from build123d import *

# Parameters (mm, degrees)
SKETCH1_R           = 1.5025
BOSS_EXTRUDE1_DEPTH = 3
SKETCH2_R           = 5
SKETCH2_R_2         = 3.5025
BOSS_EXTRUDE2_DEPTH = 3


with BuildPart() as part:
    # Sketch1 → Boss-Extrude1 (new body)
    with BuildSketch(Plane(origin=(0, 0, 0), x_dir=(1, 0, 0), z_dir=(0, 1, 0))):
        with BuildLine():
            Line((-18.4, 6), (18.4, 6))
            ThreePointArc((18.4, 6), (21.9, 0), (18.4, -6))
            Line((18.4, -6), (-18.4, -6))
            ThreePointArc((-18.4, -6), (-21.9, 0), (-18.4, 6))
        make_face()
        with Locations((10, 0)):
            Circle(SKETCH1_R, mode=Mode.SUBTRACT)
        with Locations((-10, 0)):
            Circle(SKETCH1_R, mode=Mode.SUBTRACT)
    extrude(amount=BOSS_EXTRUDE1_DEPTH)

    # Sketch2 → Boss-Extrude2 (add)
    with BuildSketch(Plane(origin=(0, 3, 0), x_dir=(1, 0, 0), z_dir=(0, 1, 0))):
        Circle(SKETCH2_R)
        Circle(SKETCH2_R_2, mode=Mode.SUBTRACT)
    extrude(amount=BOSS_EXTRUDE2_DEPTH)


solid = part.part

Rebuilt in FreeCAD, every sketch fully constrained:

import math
import FreeCAD as App
import Part
import Sketcher

doc = App.newDocument("Part")
body = doc.addObject("PartDesign::Body", "Body")

sketch1 = doc.addObject("Sketcher::SketchObject", "Sketch")
body.addObject(sketch1)
sketch1.AttachmentSupport = (doc.XZ_Plane, [""])
sketch1.MapMode = "FlatFace"
sketch1.addGeometry([
    Part.LineSegment(App.Vector(18.4, -6, 0), App.Vector(-18.4, -6, 0)),
    Part.ArcOfCircle(Part.Circle(App.Vector(-15.007143, 0, 0), App.Vector(0, 0, 1), 6.892857), math.radians(119.487126), math.radians(240.512874)),
    Part.LineSegment(App.Vector(-18.4, 6, 0), App.Vector(18.4, 6, 0)),
    Part.ArcOfCircle(Part.Circle(App.Vector(15.007143, 0, 0), App.Vector(0, 0, 1), 6.892857), math.radians(-60.512874), math.radians(60.512874)),
    Part.Circle(App.Vector(10, 0, 0), App.Vector(0, 0, 1), 1.5025),
    Part.Circle(App.Vector(-10, 0, 0), App.Vector(0, 0, 1), 1.5025),
], False)
sketch1.addConstraint([
    Sketcher.Constraint("Coincident", 0, 2, 1, 2),
    Sketcher.Constraint("Coincident", 1, 1, 2, 1),
    Sketcher.Constraint("Coincident", 2, 2, 3, 2),
    Sketcher.Constraint("Coincident", 3, 1, 0, 1),
    Sketcher.Constraint("Horizontal", 0),
    Sketcher.Constraint("Horizontal", 2),
    Sketcher.Constraint("Equal", 1, 3),
    Sketcher.Constraint("Equal", 4, 5),
    Sketcher.Constraint("Symmetric", 1, 3, 3, 3, -1, 1),
    Sketcher.Constraint("Symmetric", 4, 3, 5, 3, -1, 1),
    Sketcher.Constraint("Symmetric", 0, 2, 1, 1, -1),
    Sketcher.Constraint("PointOnObject", 4, 3, -1),
    Sketcher.Constraint("Diameter", 4, 3.005),
    Sketcher.Constraint("DistanceX", 0, 2, 0, 1, 36.8),
    Sketcher.Constraint("DistanceX", -1, 1, 4, 3, 10.0),
    Sketcher.Constraint("DistanceY", 0, 2, -1, 1, 6.0),
    Sketcher.Constraint("Radius", 1, 6.892857),
])
pad1 = doc.addObject("PartDesign::Pad", "Pad")
body.addObject(pad1)
pad1.Profile = sketch1
pad1.Length = 3
pad1.Reversed = True

sketch2 = doc.addObject("Sketcher::SketchObject", "Sketch001")
body.addObject(sketch2)
sketch2.AttachmentSupport = (doc.XZ_Plane, [""])
sketch2.MapMode = "FlatFace"
sketch2.AttachmentOffset = App.Placement(App.Vector(0, 0, -3), App.Rotation())
sketch2.addGeometry([
    Part.Circle(App.Vector(0, 0, 0), App.Vector(0, 0, 1), 5),
    Part.Circle(App.Vector(0, 0, 0), App.Vector(0, 0, 1), 3.5025),
], False)
sketch2.addConstraint([
    Sketcher.Constraint("Coincident", 0, 3, -1, 1),
    Sketcher.Constraint("Coincident", 1, 3, -1, 1),
    Sketcher.Constraint("Diameter", 0, 10.0),
    Sketcher.Constraint("Diameter", 1, 7.005),
])
pad2 = doc.addObject("PartDesign::Pad", "Pad001")
body.addObject(pad2)
pad2.Profile = sketch2
pad2.Length = 3
pad2.Reversed = True

doc.recompute()
